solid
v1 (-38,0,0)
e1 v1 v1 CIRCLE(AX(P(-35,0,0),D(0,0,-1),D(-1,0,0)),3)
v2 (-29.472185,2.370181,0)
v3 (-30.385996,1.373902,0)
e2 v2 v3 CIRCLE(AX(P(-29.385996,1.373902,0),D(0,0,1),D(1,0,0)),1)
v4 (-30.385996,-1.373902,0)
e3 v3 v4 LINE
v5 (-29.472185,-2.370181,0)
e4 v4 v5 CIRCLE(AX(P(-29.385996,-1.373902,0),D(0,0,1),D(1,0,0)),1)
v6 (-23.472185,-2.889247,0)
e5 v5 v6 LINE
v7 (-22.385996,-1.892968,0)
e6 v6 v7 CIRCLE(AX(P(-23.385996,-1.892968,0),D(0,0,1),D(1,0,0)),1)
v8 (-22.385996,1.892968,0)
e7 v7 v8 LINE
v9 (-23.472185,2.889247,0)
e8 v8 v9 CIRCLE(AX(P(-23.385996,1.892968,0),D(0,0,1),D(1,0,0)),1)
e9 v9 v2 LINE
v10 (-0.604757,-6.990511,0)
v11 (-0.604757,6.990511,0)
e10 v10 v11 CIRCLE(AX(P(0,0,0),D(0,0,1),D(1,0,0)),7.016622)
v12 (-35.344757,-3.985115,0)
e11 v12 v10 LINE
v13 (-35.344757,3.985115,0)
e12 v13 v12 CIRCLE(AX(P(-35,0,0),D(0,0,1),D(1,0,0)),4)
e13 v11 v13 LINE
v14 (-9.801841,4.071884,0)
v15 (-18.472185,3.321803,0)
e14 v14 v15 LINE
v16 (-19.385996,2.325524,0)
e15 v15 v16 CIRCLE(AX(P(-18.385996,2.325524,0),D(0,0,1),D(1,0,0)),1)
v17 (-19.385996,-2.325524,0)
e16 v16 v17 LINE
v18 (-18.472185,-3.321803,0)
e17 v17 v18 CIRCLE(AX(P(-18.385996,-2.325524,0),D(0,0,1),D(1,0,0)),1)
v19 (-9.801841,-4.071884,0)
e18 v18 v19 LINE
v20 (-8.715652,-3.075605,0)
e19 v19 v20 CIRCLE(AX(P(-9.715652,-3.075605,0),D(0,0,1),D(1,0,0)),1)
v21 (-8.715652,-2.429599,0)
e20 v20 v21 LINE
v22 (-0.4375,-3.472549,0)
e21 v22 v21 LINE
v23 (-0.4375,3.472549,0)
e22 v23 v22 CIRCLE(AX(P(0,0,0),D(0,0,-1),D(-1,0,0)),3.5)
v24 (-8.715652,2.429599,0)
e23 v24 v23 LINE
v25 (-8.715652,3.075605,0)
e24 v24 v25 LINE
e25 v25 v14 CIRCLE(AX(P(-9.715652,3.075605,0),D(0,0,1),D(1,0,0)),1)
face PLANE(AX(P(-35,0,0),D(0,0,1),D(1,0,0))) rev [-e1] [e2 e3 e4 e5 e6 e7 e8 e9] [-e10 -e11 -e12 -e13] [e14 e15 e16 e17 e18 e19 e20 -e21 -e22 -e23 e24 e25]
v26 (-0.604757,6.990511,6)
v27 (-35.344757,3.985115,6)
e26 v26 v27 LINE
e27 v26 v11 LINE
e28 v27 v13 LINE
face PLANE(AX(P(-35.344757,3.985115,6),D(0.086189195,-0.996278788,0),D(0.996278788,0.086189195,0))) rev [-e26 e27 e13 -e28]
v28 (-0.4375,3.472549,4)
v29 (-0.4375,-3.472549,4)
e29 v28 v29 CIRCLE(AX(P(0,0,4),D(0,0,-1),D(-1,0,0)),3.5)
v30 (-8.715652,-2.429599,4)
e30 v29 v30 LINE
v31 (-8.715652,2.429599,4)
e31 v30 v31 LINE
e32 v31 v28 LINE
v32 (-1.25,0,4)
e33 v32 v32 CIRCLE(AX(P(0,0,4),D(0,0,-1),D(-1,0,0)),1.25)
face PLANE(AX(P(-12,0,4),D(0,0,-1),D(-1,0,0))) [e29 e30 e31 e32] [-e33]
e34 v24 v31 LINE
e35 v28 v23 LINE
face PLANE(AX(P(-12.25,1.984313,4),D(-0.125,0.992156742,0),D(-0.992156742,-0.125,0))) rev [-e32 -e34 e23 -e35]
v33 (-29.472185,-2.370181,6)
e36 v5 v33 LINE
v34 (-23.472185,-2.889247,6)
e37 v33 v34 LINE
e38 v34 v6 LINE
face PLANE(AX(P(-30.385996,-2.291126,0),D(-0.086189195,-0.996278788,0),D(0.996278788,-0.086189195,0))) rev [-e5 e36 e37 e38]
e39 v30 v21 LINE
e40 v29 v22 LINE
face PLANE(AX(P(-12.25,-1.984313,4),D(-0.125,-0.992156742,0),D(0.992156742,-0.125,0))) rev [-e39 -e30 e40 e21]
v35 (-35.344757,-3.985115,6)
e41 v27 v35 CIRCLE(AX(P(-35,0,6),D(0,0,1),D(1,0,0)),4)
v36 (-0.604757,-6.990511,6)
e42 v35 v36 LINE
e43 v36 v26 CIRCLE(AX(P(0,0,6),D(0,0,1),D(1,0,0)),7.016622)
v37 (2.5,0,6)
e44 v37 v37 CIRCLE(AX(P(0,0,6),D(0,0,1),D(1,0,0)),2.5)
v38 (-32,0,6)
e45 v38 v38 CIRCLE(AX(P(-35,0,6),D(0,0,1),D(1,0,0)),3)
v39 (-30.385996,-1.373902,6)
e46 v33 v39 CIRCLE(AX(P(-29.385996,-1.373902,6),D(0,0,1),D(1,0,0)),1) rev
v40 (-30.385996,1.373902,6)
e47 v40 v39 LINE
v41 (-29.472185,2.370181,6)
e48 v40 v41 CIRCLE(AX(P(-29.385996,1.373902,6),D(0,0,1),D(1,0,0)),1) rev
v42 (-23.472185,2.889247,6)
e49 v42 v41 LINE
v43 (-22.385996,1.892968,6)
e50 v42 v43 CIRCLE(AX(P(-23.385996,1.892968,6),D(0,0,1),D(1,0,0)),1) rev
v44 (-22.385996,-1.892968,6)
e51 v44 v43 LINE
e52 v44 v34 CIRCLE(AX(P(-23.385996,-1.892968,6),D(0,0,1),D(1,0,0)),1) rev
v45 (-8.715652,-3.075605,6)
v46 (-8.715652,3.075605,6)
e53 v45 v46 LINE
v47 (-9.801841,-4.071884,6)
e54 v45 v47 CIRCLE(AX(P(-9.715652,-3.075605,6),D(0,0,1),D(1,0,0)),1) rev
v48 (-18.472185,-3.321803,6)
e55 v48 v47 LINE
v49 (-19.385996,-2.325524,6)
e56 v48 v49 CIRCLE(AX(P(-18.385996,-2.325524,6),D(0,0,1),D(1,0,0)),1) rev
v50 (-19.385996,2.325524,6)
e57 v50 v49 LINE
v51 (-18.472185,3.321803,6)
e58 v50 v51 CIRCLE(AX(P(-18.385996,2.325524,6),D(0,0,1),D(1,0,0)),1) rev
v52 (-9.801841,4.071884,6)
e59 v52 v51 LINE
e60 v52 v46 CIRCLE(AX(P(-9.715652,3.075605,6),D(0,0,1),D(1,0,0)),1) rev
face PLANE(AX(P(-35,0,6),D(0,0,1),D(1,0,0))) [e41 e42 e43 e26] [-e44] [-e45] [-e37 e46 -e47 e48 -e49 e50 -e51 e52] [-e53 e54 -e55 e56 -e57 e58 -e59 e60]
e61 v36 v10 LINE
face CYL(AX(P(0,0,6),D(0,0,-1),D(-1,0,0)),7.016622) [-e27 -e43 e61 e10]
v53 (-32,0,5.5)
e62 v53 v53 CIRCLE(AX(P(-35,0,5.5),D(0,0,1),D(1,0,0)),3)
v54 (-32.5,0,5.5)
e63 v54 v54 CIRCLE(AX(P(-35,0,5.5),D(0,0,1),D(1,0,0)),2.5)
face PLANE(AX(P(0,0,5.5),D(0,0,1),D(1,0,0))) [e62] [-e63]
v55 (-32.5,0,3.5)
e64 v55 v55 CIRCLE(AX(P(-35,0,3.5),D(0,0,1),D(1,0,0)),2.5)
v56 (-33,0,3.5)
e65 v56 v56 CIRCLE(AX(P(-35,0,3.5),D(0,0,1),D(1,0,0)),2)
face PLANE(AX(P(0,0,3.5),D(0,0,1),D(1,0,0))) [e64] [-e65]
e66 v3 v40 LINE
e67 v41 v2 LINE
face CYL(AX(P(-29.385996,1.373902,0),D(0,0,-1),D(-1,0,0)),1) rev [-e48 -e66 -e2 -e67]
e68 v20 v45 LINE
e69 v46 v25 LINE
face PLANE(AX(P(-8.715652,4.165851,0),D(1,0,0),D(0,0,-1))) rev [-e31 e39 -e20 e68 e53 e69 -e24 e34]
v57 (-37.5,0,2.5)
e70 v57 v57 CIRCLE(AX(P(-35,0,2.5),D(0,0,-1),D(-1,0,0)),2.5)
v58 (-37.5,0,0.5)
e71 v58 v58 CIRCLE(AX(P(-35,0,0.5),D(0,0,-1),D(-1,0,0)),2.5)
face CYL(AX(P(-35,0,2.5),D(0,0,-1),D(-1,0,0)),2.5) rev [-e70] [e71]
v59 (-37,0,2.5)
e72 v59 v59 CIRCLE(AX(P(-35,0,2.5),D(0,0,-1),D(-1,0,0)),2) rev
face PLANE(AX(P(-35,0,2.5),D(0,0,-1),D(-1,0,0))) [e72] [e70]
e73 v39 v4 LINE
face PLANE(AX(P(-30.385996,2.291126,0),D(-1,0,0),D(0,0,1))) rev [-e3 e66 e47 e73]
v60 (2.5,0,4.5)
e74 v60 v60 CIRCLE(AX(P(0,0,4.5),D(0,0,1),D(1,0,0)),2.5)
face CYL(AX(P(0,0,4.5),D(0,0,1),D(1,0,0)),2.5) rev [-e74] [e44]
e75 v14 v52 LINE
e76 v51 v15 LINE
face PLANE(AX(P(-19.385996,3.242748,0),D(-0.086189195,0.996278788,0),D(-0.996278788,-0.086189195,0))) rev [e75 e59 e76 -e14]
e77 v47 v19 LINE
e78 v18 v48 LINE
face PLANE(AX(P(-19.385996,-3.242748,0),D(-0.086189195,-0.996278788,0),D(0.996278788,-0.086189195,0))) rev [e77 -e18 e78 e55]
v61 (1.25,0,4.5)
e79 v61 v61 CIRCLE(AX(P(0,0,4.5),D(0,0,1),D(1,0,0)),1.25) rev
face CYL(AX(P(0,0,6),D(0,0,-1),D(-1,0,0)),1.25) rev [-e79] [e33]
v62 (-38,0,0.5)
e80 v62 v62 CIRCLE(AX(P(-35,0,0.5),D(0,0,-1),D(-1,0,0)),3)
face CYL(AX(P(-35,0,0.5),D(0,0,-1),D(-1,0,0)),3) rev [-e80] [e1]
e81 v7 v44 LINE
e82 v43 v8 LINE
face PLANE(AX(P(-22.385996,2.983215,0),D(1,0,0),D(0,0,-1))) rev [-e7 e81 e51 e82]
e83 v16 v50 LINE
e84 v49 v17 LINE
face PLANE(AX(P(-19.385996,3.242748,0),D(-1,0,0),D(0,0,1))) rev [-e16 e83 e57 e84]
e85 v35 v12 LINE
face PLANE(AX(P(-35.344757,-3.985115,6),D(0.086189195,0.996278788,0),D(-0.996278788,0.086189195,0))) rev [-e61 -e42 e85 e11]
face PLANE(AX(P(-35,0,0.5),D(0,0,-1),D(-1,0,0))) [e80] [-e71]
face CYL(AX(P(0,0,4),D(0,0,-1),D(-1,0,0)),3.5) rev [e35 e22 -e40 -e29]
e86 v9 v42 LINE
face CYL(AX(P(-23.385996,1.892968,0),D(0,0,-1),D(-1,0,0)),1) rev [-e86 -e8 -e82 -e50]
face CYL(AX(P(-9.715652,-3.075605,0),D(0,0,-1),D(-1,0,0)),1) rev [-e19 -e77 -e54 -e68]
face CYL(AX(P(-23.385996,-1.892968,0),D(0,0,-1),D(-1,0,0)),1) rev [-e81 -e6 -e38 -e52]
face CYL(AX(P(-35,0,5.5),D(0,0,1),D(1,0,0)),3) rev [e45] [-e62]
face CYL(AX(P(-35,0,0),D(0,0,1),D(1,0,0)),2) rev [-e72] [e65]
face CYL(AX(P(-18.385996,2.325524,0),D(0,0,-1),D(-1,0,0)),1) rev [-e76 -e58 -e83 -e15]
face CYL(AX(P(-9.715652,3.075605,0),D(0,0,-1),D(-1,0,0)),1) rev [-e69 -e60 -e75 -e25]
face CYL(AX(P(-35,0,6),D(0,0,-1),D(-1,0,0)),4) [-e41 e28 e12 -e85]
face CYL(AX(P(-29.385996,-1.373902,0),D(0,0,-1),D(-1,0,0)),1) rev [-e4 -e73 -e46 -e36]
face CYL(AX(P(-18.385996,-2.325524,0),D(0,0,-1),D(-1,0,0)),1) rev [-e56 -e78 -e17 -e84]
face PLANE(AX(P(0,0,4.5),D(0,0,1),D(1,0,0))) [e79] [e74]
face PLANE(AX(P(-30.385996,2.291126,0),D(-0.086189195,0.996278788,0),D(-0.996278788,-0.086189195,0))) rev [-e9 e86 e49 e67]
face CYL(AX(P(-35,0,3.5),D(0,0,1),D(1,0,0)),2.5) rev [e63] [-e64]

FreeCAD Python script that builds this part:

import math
import FreeCAD as App
import Part
import Sketcher

V = App.Vector


def edges_at(feature, points):
    """Names of the edges that pass closest to the given points."""
    edges = feature.Shape.Edges
    near = lambda p: min(range(len(edges)), key=lambda i: edges[i].distToShape(Part.Vertex(*p))[0])
    return sorted({f"Edge{near(p) + 1}" for p in points})


def add_polygon(sketch, points):
    """Adds a closed chain of lines whose ends are joined by coincident constraints."""
    first, n = sketch.GeometryCount, len(points)
    for a, b in zip(points, points[1:] + points[:1]):
        sketch.addGeometry(Part.LineSegment(App.Vector(*a, 0), App.Vector(*b, 0)), False)
    for i in range(n):
        sketch.addConstraint(Sketcher.Constraint("Coincident", first + i, 2, first + (i + 1) % n, 1))

doc = App.newDocument("Part")
body = doc.addObject("PartDesign::Body", "Body")

sketch1 = body.newObject("Sketcher::SketchObject", "Sketch")
sketch1.AttachmentSupport = (doc.getObject("XY_Plane"), [""])
sketch1.MapMode = "FlatFace"
sketch1.addGeometry([
    Part.LineSegment(V(-0.604757, 6.990511, 0), V(-35.344757, 3.985115, 0)),
    Part.ArcOfCircle(Part.Circle(V(-35, 0, 0), V(0, 0, 1), 4), math.radians(94.944412), math.radians(265.055588)),
    Part.LineSegment(V(-35.344757, -3.985115, 0), V(-0.604757, -6.990511, 0)),
    Part.ArcOfCircle(Part.Circle(V(0, 0, 0), V(0, 0, 1), 7.016622), math.radians(-94.944412), math.radians(94.944412)),
], False)
sketch1.addConstraint([
    Sketcher.Constraint("Tangent", 0, 2, 1, 1),
    Sketcher.Constraint("Tangent", 1, 2, 2, 1),
    Sketcher.Constraint("Tangent", 2, 2, 3, 1),
    Sketcher.Constraint("Tangent", 3, 2, 0, 1),
    Sketcher.Constraint("Coincident", 3, 3, -1, 1),
    Sketcher.Constraint("PointOnObject", 1, 3, -1),
    Sketcher.Constraint("Radius", 1, 4.0),
    Sketcher.Constraint("DistanceX", 1, 3, -1, 1, 35.0),
    Sketcher.Constraint("Radius", 3, 7.016622),
])
pad1 = body.newObject("PartDesign::Pad", "Pad")
pad1.Profile = sketch1
pad1.Length = 6

sketch2 = body.newObject("Sketcher::SketchObject", "Sketch001")
sketch2.AttachmentSupport = (doc.getObject("XY_Plane"), [""])
sketch2.MapMode = "FlatFace"
sketch2.AttachmentOffset = App.Placement(V(0, 0, 6), App.Rotation())
add_polygon(sketch2, [(-22.385996, 2.983215), (-30.385996, 2.291126), (-30.385996, -2.291126), (-22.385996, -2.983215)])
add_polygon(sketch2, [(-19.385996, 3.242748), (-19.385996, -3.242748), (-8.715652, -4.165851), (-8.715652, 4.165851)])
sketch2.addConstraint([
    Sketcher.Constraint("Vertical", 1),
    Sketcher.Constraint("Vertical", 3),
    Sketcher.Constraint("Vertical", 4),
    Sketcher.Constraint("Vertical", 6),
    Sketcher.Constraint("Parallel", 2, 5),
    Sketcher.Constraint("Parallel", 0, 7),
    Sketcher.Constraint("Equal", 0, 2),
    Sketcher.Constraint("DistanceX", 1, 2, 2, 2, 8.0),
    Sketcher.Constraint("DistanceX", 2, 2, 4, 2, 3.0),
    Sketcher.Constraint("Distance", 5, 10.710198),
    Sketcher.Constraint("DistanceY", 1, 2, 1, 1, 4.582251),
    Sketcher.Constraint("DistanceY", 3, 1, 3, 2, 5.966429),
    Sketcher.Constraint("DistanceY", 4, 2, 6, 2, 7.408599),
    Sketcher.Constraint("DistanceY", 4, 2, -1, 1, 3.242748),
    Sketcher.Constraint("DistanceX", 0, 2, -1, 1, 30.385996),
    Sketcher.Constraint("DistanceY", -1, 1, 0, 2, 2.291126),
])
pocket1 = body.newObject("PartDesign::Pocket", "Pocket")
pocket1.Profile = sketch2
pocket1.Type = "ThroughAll"
doc.recompute()

fillet = body.newObject("PartDesign::Fillet", "Fillet")
fillet.Base = (pocket1, edges_at(pocket1, [
    (-30.386, -2.291, 3),
    (-30.386, 2.291, 3),
    (-22.386, 2.983, 3),
    (-22.386, -2.983, 3),
    (-8.716, -4.166, 3),
    (-19.386, -3.243, 3),
    (-19.386, 3.243, 3),
    (-8.716, 4.166, 3),
]))
fillet.Radius = 1

sketch3 = body.newObject("Sketcher::SketchObject", "Sketch002")
sketch3.AttachmentSupport = (doc.getObject("XY_Plane"), [""])
sketch3.MapMode = "FlatFace"
sketch3.AttachmentOffset = App.Placement(V(0, 0, 6), App.Rotation())
sketch3.addGeometry(Part.Circle(V(-35, 0, 0), V(0, 0, 1), 2), False)
sketch3.addConstraint([
    Sketcher.Constraint("PointOnObject", 0, 3, -1),
    Sketcher.Constraint("Diameter", 0, 4.0),
    Sketcher.Constraint("DistanceX", 0, 3, -1, 1, 35.0),
])
pocket2 = body.newObject("PartDesign::Pocket", "Pocket001")
pocket2.Profile = sketch3
pocket2.Type = "ThroughAll"

sketch4 = body.newObject("Sketcher::SketchObject", "Sketch003")
sketch4.AttachmentSupport = (doc.getObject("XY_Plane"), [""])
sketch4.MapMode = "FlatFace"
sketch4.AttachmentOffset = App.Placement(V(0, 0, 6), App.Rotation())
sketch4.addGeometry([
    Part.Circle(V(-35, 0, 0), V(0, 0, 1), 2.5),
    Part.Circle(V(-35, 0, 0), V(0, 0, 1), 2),
], False)
sketch4.addConstraint([
    Sketcher.Constraint("Coincident", 1, 3, 0, 3),
    Sketcher.Constraint("PointOnObject", 0, 3, -1),
    Sketcher.Constraint("Diameter", 0, 5.0),
    Sketcher.Constraint("Diameter", 1, 4.0),
    Sketcher.Constraint("DistanceX", 0, 3, -1, 1, 35.0),
])
pocket3 = body.newObject("PartDesign::Pocket", "Pocket002")
pocket3.Profile = sketch4
pocket3.Length = 2.5

sketch5 = body.newObject("Sketcher::SketchObject", "Sketch004")
sketch5.AttachmentSupport = (doc.getObject("XY_Plane"), [""])
sketch5.MapMode = "FlatFace"
sketch5.AttachmentOffset = App.Placement(V(0, 0, 6), App.Rotation())
sketch5.addGeometry([
    Part.Circle(V(-35, 0, 0), V(0, 0, 1), 3),
    Part.Circle(V(-35, 0, 0), V(0, 0, 1), 2.5),
], False)
sketch5.addConstraint([
    Sketcher.Constraint("Coincident", 1, 3, 0, 3),
    Sketcher.Constraint("PointOnObject", 0, 3, -1),
    Sketcher.Constraint("Diameter", 0, 6.0),
    Sketcher.Constraint("Diameter", 1, 5.0),
    Sketcher.Constraint("DistanceX", 0, 3, -1, 1, 35.0),
])
pocket4 = body.newObject("PartDesign::Pocket", "Pocket003")
pocket4.Profile = sketch5
pocket4.Length = 0.5

sketch6 = body.newObject("Sketcher::SketchObject", "Sketch005")
sketch6.AttachmentSupport = (doc.getObject("XY_Plane"), [""])
sketch6.MapMode = "FlatFace"
sketch6.addGeometry([
    Part.LineSegment(V(-12.25, 1.984313, 0), V(-0.4375, 3.472549, 0)),
    Part.ArcOfCircle(Part.Circle(V(0, 0, 0), V(0, 0, 1), 3.5), math.radians(-97.180756), math.radians(97.180756)),
    Part.LineSegment(V(-0.4375, -3.472549, 0), V(-12.25, -1.984313, 0)),
    Part.ArcOfCircle(Part.Circle(V(-12, 0, 0), V(0, 0, 1), 2), math.radians(97.180756), math.radians(262.819244)),
], False)
sketch6.addConstraint([
    Sketcher.Constraint("Tangent", 0, 2, 1, 2),
    Sketcher.Constraint("Tangent", 1, 1, 2, 1),
    Sketcher.Constraint("Tangent", 2, 2, 3, 2),
    Sketcher.Constraint("Tangent", 3, 1, 0, 1),
    Sketcher.Constraint("Coincident", 1, 3, -1, 1),
    Sketcher.Constraint("PointOnObject", 3, 3, -1),
    Sketcher.Constraint("Radius", 3, 2.0),
    Sketcher.Constraint("Radius", 1, 3.5),
    Sketcher.Constraint("DistanceX", 3, 3, -1, 1, 12.0),
])
pocket5 = body.newObject("PartDesign::Pocket", "Pocket004")
pocket5.Profile = sketch6
pocket5.Length = 4
pocket5.Reversed = True

sketch7 = body.newObject("Sketcher::SketchObject", "Sketch006")
sketch7.AttachmentSupport = (doc.getObject("XY_Plane"), [""])
sketch7.MapMode = "FlatFace"
sketch7.AttachmentOffset = App.Placement(V(0, 0, 4), App.Rotation())
sketch7.addGeometry(Part.Circle(V(0, 0, 0), V(0, 0, 1), 1.25), False)
sketch7.addConstraint([
    Sketcher.Constraint("Coincident", 0, 3, -1, 1),
    Sketcher.Constraint("Diameter", 0, 2.5),
])
pocket6 = body.newObject("PartDesign::Pocket", "Pocket005")
pocket6.Profile = sketch7
pocket6.Type = "ThroughAll"
pocket6.Reversed = True

sketch8 = body.newObject("Sketcher::SketchObject", "Sketch007")
sketch8.AttachmentSupport = (doc.getObject("XY_Plane"), [""])
sketch8.MapMode = "FlatFace"
sketch8.AttachmentOffset = App.Placement(V(0, 0, 6), App.Rotation())
sketch8.addGeometry(Part.Circle(V(0, 0, 0), V(0, 0, 1), 2.5), False)
sketch8.addConstraint([
    Sketcher.Constraint("Coincident", 0, 3, -1, 1),
    Sketcher.Constraint("Diameter", 0, 5.0),
])
pocket7 = body.newObject("PartDesign::Pocket", "Pocket006")
pocket7.Profile = sketch8
pocket7.Length = 1.5

sketch9 = body.newObject("Sketcher::SketchObject", "Sketch008")
sketch9.AttachmentSupport = (doc.getObject("XY_Plane"), [""])
sketch9.MapMode = "FlatFace"
sketch9.AttachmentOffset = App.Placement(V(0, 0, 2.5), App.Rotation())
sketch9.addGeometry(Part.Circle(V(-35, 0, 0), V(0, 0, 1), 2.5), False)
sketch9.addConstraint([
    Sketcher.Constraint("PointOnObject", 0, 3, -1),
    Sketcher.Constraint("Diameter", 0, 5.0),
    Sketcher.Constraint("DistanceX", 0, 3, -1, 1, 35.0),
])
pocket8 = body.newObject("PartDesign::Pocket", "Pocket007")
pocket8.Profile = sketch9
pocket8.Length = 2.5

sketch10 = body.newObject("Sketcher::SketchObject", "Sketch009")
sketch10.AttachmentSupport = (doc.getObject("XY_Plane"), [""])
sketch10.MapMode = "FlatFace"
sketch10.AttachmentOffset = App.Placement(V(0, 0, 0.5), App.Rotation())
sketch10.addGeometry([
    Part.Circle(V(-35, 0, 0), V(0, 0, 1), 3),
    Part.Circle(V(-35, 0, 0), V(0, 0, 1), 2.5),
], False)
sketch10.addConstraint([
    Sketcher.Constraint("Coincident", 1, 3, 0, 3),
    Sketcher.Constraint("PointOnObject", 0, 3, -1),
    Sketcher.Constraint("Diameter", 0, 6.0),
    Sketcher.Constraint("Diameter", 1, 5.0),
    Sketcher.Constraint("DistanceX", 0, 3, -1, 1, 35.0),
])
pocket9 = body.newObject("PartDesign::Pocket", "Pocket008")
pocket9.Profile = sketch10
pocket9.Length = 0.5

doc.recompute()
